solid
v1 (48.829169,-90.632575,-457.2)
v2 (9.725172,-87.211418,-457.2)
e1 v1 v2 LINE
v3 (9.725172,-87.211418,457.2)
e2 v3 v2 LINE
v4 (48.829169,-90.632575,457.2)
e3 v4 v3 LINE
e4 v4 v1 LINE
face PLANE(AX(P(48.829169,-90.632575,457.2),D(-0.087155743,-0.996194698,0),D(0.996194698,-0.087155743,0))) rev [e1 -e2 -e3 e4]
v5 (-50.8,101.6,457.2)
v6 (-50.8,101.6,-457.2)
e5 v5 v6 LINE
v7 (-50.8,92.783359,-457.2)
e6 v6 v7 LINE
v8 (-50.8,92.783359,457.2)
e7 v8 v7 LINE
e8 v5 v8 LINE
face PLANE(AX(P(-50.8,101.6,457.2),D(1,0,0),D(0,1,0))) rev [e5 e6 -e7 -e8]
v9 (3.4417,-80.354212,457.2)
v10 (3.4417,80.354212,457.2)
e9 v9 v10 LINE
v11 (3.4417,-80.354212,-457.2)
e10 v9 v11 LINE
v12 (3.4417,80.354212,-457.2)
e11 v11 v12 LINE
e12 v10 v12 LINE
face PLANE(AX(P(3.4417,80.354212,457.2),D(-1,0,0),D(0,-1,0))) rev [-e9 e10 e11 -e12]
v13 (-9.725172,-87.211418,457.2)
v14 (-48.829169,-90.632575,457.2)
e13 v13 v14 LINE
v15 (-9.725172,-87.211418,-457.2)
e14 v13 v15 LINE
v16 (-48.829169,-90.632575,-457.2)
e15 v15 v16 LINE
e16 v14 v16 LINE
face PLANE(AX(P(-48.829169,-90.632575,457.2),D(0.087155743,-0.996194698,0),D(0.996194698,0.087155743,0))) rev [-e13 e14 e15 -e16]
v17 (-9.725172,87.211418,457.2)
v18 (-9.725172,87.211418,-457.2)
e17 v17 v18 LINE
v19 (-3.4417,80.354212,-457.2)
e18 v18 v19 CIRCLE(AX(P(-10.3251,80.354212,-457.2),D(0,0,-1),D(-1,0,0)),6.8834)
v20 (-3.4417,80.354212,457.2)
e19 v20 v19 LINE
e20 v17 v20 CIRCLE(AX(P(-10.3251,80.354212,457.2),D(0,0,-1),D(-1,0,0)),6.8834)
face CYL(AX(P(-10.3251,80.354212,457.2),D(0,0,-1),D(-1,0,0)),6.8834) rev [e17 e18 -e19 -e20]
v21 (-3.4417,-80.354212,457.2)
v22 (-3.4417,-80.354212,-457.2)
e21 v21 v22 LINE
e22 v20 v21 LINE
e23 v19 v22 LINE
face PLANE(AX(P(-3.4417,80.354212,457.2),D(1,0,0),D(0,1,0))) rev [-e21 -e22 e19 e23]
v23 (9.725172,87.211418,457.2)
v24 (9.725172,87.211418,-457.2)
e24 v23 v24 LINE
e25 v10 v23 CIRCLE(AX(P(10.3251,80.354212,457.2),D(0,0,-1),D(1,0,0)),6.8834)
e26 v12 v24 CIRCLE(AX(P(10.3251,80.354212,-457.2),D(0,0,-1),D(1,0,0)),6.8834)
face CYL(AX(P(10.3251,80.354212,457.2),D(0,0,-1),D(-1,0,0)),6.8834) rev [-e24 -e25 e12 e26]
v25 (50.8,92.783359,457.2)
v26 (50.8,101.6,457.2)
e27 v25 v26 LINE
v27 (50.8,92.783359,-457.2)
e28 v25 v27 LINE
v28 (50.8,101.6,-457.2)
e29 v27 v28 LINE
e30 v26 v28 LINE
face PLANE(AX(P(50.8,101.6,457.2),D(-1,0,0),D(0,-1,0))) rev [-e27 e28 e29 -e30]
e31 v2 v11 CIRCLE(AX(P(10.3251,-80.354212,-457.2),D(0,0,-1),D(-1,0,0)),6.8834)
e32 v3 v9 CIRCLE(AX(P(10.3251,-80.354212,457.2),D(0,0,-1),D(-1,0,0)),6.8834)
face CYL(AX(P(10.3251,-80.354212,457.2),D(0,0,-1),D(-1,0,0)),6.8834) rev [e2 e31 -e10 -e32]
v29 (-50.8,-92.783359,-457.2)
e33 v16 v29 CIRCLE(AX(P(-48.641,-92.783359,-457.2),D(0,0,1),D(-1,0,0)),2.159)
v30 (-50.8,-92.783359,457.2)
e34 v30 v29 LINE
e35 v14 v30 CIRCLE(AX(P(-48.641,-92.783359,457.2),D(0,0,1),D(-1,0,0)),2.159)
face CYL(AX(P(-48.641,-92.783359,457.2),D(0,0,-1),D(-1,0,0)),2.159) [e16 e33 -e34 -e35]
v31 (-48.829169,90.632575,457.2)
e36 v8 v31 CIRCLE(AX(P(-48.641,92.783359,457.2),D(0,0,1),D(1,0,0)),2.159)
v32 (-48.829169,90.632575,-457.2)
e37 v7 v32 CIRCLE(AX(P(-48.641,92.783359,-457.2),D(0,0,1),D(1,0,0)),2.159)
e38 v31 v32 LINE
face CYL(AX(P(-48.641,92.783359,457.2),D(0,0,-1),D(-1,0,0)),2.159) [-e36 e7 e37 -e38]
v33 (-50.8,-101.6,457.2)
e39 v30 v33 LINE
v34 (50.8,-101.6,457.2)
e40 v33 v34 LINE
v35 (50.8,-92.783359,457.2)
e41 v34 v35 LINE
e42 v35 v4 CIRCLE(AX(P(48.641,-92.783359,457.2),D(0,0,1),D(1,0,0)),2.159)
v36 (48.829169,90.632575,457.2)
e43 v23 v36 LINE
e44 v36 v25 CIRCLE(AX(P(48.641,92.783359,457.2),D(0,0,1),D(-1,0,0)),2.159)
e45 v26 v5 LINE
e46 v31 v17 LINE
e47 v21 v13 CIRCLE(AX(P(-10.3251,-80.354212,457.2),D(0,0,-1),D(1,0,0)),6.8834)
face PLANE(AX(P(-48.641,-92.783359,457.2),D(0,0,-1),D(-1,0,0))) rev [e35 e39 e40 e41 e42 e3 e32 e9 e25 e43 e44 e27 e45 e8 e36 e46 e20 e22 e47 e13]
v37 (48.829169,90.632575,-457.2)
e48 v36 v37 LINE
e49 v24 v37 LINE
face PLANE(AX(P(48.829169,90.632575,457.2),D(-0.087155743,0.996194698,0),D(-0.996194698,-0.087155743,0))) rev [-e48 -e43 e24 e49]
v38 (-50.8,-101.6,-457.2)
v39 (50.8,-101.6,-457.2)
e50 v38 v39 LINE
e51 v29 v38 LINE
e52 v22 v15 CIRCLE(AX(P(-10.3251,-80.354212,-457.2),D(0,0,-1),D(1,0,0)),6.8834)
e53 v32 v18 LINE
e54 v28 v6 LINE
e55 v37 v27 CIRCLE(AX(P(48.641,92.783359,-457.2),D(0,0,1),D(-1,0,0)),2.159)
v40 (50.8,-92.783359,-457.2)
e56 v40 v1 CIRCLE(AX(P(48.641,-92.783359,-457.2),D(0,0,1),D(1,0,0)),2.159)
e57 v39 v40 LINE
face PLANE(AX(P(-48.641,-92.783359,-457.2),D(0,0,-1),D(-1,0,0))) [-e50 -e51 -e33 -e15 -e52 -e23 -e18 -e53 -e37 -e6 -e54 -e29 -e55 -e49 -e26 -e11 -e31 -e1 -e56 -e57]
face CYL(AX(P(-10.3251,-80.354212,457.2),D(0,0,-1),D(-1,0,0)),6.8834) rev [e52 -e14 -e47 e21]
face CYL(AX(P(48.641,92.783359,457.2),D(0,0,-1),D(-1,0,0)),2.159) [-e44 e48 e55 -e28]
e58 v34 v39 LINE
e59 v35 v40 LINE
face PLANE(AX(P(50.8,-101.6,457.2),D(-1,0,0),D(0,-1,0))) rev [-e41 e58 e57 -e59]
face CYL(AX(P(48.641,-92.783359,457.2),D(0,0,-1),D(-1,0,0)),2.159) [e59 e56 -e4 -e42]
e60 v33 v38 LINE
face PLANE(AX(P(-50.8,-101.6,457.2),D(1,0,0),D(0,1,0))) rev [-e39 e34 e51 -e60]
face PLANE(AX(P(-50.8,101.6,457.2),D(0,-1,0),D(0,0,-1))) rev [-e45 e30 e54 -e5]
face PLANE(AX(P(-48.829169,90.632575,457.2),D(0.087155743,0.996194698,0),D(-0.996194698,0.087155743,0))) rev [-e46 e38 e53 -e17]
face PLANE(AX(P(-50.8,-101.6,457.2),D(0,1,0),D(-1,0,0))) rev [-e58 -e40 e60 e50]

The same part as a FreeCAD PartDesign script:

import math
import FreeCAD as App
import Part
import Sketcher
from FreeCAD import Vector
Q = App.Units.Quantity

doc = App.newDocument("Part")
body = doc.addObject("PartDesign::Body", "Body")

sketch1 = body.newObject("Sketcher::SketchObject", "Sketch")
sketch1.AttachmentSupport = (doc.getObject("XY_Plane"), [""])
sketch1.MapMode = "FlatFace"
sketch1.AttachmentOffset = App.Placement(Vector(0, 0, -18 * 25.4), App.Rotation())
sketch1.addGeometry([
    Part.LineSegment(Vector(-50.8, -101.6, 0), Vector(50.8, -101.6, 0)),
    Part.LineSegment(Vector(50.8, -101.6, 0), Vector(50.8, -92.8, 0)),
    Part.ArcOfCircle(Part.Circle(Vector(48.6, -92.8, 0), Vector(0, 0, 1), 2.2), math.radians(0), math.radians(85)),
    Part.LineSegment(Vector(48.8, -90.6, 0), Vector(9.7, -87.2, 0)),
    Part.ArcOfCircle(Part.Circle(Vector(10.3, -80.4, 0), Vector(0, 0, 1), 6.9), math.radians(-180), math.radians(-95)),
    Part.LineSegment(Vector(3.4, -80.4, 0), Vector(3.4, 80.4, 0)),
    Part.ArcOfCircle(Part.Circle(Vector(10.3, 80.4, 0), Vector(0, 0, 1), 6.9), math.radians(95), math.radians(180)),
    Part.LineSegment(Vector(9.7, 87.2, 0), Vector(48.8, 90.6, 0)),
    Part.ArcOfCircle(Part.Circle(Vector(48.6, 92.8, 0), Vector(0, 0, 1), 2.2), math.radians(-85), math.radians(0)),
    Part.LineSegment(Vector(50.8, 92.8, 0), Vector(50.8, 101.6, 0)),
    Part.LineSegment(Vector(50.8, 101.6, 0), Vector(-50.8, 101.6, 0)),
    Part.LineSegment(Vector(-50.8, 101.6, 0), Vector(-50.8, 92.8, 0)),
    Part.ArcOfCircle(Part.Circle(Vector(-48.6, 92.8, 0), Vector(0, 0, 1), 2.2), math.radians(180), math.radians(265)),
    Part.LineSegment(Vector(-48.8, 90.6, 0), Vector(-9.7, 87.2, 0)),
    Part.ArcOfCircle(Part.Circle(Vector(-10.3, 80.4, 0), Vector(0, 0, 1), 6.9), math.radians(0), math.radians(85)),
    Part.LineSegment(Vector(-3.4, 80.4, 0), Vector(-3.4, -80.4, 0)),
    Part.ArcOfCircle(Part.Circle(Vector(-10.3, -80.4, 0), Vector(0, 0, 1), 6.9), math.radians(-85), math.radians(0)),
    Part.LineSegment(Vector(-9.7, -87.2, 0), Vector(-48.8, -90.6, 0)),
    Part.ArcOfCircle(Part.Circle(Vector(-48.6, -92.8, 0), Vector(0, 0, 1), 2.2), math.radians(95), math.radians(180)),
    Part.LineSegment(Vector(-50.8, -92.8, 0), Vector(-50.8, -101.6, 0)),
], False)
sketch1.addConstraint([
    Sketcher.Constraint("Coincident", 0, 2, 1, 1),
    Sketcher.Constraint("Tangent", 1, 2, 2, 1),
    Sketcher.Constraint("Tangent", 2, 2, 3, 1),
    Sketcher.Constraint("Tangent", 3, 2, 4, 2),
    Sketcher.Constraint("Tangent", 4, 1, 5, 1),
    Sketcher.Constraint("Tangent", 5, 2, 6, 2),
    Sketcher.Constraint("Tangent", 6, 1, 7, 1),
    Sketcher.Constraint("Tangent", 7, 2, 8, 1),
    Sketcher.Constraint("Tangent", 8, 2, 9, 1),
    Sketcher.Constraint("Coincident", 9, 2, 10, 1),
    Sketcher.Constraint("Coincident", 10, 2, 11, 1),
    Sketcher.Constraint("Tangent", 11, 2, 12, 1),
    Sketcher.Constraint("Tangent", 12, 2, 13, 1),
    Sketcher.Constraint("Tangent", 13, 2, 14, 2),
    Sketcher.Constraint("Tangent", 14, 1, 15, 1),
    Sketcher.Constraint("Tangent", 15, 2, 16, 2),
    Sketcher.Constraint("Tangent", 16, 1, 17, 1),
    Sketcher.Constraint("Tangent", 17, 2, 18, 1),
    Sketcher.Constraint("Tangent", 18, 2, 19, 1),
    Sketcher.Constraint("Coincident", 19, 2, 0, 1),
    Sketcher.Constraint("Horizontal", 0),
    Sketcher.Constraint("Vertical", 1),
    Sketcher.Constraint("Vertical", 5),
    Sketcher.Constraint("Vertical", 9),
    Sketcher.Constraint("Horizontal", 10),
    Sketcher.Constraint("Vertical", 11),
    Sketcher.Constraint("Vertical", 15),
    Sketcher.Constraint("Vertical", 19),
    Sketcher.Constraint("Equal", 4, 6),
    Sketcher.Constraint("Equal", 2, 8),
    Sketcher.Constraint("Equal", 8, 12),
    Sketcher.Constraint("Equal", 6, 14),
    Sketcher.Constraint("Equal", 14, 16),
    Sketcher.Constraint("Equal", 12, 18),
    Sketcher.Constraint("Symmetric", 2, 3, 12, 3, -1, 1),
    Sketcher.Constraint("Symmetric", 4, 3, 14, 3, -1, 1),
    Sketcher.Constraint("Symmetric", 8, 3, 18, 3, -1, 1),
    Sketcher.Constraint("Symmetric", 8, 3, 12, 3, -2),
    Sketcher.Constraint("Parallel", 7, 17),
    Sketcher.Constraint("Horizontal", 6, 3, 14, 3),
    Sketcher.Constraint("Equal", 1, 9),
    Sketcher.Constraint("DistanceX", 0, 1, 0, 2, Q("4 in")),
    Sketcher.Constraint("DistanceY", 0, 2, -1, 1, Q("4 in")),
    Sketcher.Constraint("Angle", 3, Q("175 deg")),
    Sketcher.Constraint("Radius", 2, Q("0.085 in")),
    Sketcher.Constraint("Radius", 4, Q("0.271 in")),
    Sketcher.Constraint("DistanceX", 14, 3, 6, 3, Q("0.813 in")),
    Sketcher.Constraint("DistanceY", 1, 1, 1, 2, 8.816641),
])
pad1 = body.newObject("PartDesign::Pad", "Pad")
pad1.Profile = sketch1
pad1.Length = Q("36 in")

doc.recompute()
